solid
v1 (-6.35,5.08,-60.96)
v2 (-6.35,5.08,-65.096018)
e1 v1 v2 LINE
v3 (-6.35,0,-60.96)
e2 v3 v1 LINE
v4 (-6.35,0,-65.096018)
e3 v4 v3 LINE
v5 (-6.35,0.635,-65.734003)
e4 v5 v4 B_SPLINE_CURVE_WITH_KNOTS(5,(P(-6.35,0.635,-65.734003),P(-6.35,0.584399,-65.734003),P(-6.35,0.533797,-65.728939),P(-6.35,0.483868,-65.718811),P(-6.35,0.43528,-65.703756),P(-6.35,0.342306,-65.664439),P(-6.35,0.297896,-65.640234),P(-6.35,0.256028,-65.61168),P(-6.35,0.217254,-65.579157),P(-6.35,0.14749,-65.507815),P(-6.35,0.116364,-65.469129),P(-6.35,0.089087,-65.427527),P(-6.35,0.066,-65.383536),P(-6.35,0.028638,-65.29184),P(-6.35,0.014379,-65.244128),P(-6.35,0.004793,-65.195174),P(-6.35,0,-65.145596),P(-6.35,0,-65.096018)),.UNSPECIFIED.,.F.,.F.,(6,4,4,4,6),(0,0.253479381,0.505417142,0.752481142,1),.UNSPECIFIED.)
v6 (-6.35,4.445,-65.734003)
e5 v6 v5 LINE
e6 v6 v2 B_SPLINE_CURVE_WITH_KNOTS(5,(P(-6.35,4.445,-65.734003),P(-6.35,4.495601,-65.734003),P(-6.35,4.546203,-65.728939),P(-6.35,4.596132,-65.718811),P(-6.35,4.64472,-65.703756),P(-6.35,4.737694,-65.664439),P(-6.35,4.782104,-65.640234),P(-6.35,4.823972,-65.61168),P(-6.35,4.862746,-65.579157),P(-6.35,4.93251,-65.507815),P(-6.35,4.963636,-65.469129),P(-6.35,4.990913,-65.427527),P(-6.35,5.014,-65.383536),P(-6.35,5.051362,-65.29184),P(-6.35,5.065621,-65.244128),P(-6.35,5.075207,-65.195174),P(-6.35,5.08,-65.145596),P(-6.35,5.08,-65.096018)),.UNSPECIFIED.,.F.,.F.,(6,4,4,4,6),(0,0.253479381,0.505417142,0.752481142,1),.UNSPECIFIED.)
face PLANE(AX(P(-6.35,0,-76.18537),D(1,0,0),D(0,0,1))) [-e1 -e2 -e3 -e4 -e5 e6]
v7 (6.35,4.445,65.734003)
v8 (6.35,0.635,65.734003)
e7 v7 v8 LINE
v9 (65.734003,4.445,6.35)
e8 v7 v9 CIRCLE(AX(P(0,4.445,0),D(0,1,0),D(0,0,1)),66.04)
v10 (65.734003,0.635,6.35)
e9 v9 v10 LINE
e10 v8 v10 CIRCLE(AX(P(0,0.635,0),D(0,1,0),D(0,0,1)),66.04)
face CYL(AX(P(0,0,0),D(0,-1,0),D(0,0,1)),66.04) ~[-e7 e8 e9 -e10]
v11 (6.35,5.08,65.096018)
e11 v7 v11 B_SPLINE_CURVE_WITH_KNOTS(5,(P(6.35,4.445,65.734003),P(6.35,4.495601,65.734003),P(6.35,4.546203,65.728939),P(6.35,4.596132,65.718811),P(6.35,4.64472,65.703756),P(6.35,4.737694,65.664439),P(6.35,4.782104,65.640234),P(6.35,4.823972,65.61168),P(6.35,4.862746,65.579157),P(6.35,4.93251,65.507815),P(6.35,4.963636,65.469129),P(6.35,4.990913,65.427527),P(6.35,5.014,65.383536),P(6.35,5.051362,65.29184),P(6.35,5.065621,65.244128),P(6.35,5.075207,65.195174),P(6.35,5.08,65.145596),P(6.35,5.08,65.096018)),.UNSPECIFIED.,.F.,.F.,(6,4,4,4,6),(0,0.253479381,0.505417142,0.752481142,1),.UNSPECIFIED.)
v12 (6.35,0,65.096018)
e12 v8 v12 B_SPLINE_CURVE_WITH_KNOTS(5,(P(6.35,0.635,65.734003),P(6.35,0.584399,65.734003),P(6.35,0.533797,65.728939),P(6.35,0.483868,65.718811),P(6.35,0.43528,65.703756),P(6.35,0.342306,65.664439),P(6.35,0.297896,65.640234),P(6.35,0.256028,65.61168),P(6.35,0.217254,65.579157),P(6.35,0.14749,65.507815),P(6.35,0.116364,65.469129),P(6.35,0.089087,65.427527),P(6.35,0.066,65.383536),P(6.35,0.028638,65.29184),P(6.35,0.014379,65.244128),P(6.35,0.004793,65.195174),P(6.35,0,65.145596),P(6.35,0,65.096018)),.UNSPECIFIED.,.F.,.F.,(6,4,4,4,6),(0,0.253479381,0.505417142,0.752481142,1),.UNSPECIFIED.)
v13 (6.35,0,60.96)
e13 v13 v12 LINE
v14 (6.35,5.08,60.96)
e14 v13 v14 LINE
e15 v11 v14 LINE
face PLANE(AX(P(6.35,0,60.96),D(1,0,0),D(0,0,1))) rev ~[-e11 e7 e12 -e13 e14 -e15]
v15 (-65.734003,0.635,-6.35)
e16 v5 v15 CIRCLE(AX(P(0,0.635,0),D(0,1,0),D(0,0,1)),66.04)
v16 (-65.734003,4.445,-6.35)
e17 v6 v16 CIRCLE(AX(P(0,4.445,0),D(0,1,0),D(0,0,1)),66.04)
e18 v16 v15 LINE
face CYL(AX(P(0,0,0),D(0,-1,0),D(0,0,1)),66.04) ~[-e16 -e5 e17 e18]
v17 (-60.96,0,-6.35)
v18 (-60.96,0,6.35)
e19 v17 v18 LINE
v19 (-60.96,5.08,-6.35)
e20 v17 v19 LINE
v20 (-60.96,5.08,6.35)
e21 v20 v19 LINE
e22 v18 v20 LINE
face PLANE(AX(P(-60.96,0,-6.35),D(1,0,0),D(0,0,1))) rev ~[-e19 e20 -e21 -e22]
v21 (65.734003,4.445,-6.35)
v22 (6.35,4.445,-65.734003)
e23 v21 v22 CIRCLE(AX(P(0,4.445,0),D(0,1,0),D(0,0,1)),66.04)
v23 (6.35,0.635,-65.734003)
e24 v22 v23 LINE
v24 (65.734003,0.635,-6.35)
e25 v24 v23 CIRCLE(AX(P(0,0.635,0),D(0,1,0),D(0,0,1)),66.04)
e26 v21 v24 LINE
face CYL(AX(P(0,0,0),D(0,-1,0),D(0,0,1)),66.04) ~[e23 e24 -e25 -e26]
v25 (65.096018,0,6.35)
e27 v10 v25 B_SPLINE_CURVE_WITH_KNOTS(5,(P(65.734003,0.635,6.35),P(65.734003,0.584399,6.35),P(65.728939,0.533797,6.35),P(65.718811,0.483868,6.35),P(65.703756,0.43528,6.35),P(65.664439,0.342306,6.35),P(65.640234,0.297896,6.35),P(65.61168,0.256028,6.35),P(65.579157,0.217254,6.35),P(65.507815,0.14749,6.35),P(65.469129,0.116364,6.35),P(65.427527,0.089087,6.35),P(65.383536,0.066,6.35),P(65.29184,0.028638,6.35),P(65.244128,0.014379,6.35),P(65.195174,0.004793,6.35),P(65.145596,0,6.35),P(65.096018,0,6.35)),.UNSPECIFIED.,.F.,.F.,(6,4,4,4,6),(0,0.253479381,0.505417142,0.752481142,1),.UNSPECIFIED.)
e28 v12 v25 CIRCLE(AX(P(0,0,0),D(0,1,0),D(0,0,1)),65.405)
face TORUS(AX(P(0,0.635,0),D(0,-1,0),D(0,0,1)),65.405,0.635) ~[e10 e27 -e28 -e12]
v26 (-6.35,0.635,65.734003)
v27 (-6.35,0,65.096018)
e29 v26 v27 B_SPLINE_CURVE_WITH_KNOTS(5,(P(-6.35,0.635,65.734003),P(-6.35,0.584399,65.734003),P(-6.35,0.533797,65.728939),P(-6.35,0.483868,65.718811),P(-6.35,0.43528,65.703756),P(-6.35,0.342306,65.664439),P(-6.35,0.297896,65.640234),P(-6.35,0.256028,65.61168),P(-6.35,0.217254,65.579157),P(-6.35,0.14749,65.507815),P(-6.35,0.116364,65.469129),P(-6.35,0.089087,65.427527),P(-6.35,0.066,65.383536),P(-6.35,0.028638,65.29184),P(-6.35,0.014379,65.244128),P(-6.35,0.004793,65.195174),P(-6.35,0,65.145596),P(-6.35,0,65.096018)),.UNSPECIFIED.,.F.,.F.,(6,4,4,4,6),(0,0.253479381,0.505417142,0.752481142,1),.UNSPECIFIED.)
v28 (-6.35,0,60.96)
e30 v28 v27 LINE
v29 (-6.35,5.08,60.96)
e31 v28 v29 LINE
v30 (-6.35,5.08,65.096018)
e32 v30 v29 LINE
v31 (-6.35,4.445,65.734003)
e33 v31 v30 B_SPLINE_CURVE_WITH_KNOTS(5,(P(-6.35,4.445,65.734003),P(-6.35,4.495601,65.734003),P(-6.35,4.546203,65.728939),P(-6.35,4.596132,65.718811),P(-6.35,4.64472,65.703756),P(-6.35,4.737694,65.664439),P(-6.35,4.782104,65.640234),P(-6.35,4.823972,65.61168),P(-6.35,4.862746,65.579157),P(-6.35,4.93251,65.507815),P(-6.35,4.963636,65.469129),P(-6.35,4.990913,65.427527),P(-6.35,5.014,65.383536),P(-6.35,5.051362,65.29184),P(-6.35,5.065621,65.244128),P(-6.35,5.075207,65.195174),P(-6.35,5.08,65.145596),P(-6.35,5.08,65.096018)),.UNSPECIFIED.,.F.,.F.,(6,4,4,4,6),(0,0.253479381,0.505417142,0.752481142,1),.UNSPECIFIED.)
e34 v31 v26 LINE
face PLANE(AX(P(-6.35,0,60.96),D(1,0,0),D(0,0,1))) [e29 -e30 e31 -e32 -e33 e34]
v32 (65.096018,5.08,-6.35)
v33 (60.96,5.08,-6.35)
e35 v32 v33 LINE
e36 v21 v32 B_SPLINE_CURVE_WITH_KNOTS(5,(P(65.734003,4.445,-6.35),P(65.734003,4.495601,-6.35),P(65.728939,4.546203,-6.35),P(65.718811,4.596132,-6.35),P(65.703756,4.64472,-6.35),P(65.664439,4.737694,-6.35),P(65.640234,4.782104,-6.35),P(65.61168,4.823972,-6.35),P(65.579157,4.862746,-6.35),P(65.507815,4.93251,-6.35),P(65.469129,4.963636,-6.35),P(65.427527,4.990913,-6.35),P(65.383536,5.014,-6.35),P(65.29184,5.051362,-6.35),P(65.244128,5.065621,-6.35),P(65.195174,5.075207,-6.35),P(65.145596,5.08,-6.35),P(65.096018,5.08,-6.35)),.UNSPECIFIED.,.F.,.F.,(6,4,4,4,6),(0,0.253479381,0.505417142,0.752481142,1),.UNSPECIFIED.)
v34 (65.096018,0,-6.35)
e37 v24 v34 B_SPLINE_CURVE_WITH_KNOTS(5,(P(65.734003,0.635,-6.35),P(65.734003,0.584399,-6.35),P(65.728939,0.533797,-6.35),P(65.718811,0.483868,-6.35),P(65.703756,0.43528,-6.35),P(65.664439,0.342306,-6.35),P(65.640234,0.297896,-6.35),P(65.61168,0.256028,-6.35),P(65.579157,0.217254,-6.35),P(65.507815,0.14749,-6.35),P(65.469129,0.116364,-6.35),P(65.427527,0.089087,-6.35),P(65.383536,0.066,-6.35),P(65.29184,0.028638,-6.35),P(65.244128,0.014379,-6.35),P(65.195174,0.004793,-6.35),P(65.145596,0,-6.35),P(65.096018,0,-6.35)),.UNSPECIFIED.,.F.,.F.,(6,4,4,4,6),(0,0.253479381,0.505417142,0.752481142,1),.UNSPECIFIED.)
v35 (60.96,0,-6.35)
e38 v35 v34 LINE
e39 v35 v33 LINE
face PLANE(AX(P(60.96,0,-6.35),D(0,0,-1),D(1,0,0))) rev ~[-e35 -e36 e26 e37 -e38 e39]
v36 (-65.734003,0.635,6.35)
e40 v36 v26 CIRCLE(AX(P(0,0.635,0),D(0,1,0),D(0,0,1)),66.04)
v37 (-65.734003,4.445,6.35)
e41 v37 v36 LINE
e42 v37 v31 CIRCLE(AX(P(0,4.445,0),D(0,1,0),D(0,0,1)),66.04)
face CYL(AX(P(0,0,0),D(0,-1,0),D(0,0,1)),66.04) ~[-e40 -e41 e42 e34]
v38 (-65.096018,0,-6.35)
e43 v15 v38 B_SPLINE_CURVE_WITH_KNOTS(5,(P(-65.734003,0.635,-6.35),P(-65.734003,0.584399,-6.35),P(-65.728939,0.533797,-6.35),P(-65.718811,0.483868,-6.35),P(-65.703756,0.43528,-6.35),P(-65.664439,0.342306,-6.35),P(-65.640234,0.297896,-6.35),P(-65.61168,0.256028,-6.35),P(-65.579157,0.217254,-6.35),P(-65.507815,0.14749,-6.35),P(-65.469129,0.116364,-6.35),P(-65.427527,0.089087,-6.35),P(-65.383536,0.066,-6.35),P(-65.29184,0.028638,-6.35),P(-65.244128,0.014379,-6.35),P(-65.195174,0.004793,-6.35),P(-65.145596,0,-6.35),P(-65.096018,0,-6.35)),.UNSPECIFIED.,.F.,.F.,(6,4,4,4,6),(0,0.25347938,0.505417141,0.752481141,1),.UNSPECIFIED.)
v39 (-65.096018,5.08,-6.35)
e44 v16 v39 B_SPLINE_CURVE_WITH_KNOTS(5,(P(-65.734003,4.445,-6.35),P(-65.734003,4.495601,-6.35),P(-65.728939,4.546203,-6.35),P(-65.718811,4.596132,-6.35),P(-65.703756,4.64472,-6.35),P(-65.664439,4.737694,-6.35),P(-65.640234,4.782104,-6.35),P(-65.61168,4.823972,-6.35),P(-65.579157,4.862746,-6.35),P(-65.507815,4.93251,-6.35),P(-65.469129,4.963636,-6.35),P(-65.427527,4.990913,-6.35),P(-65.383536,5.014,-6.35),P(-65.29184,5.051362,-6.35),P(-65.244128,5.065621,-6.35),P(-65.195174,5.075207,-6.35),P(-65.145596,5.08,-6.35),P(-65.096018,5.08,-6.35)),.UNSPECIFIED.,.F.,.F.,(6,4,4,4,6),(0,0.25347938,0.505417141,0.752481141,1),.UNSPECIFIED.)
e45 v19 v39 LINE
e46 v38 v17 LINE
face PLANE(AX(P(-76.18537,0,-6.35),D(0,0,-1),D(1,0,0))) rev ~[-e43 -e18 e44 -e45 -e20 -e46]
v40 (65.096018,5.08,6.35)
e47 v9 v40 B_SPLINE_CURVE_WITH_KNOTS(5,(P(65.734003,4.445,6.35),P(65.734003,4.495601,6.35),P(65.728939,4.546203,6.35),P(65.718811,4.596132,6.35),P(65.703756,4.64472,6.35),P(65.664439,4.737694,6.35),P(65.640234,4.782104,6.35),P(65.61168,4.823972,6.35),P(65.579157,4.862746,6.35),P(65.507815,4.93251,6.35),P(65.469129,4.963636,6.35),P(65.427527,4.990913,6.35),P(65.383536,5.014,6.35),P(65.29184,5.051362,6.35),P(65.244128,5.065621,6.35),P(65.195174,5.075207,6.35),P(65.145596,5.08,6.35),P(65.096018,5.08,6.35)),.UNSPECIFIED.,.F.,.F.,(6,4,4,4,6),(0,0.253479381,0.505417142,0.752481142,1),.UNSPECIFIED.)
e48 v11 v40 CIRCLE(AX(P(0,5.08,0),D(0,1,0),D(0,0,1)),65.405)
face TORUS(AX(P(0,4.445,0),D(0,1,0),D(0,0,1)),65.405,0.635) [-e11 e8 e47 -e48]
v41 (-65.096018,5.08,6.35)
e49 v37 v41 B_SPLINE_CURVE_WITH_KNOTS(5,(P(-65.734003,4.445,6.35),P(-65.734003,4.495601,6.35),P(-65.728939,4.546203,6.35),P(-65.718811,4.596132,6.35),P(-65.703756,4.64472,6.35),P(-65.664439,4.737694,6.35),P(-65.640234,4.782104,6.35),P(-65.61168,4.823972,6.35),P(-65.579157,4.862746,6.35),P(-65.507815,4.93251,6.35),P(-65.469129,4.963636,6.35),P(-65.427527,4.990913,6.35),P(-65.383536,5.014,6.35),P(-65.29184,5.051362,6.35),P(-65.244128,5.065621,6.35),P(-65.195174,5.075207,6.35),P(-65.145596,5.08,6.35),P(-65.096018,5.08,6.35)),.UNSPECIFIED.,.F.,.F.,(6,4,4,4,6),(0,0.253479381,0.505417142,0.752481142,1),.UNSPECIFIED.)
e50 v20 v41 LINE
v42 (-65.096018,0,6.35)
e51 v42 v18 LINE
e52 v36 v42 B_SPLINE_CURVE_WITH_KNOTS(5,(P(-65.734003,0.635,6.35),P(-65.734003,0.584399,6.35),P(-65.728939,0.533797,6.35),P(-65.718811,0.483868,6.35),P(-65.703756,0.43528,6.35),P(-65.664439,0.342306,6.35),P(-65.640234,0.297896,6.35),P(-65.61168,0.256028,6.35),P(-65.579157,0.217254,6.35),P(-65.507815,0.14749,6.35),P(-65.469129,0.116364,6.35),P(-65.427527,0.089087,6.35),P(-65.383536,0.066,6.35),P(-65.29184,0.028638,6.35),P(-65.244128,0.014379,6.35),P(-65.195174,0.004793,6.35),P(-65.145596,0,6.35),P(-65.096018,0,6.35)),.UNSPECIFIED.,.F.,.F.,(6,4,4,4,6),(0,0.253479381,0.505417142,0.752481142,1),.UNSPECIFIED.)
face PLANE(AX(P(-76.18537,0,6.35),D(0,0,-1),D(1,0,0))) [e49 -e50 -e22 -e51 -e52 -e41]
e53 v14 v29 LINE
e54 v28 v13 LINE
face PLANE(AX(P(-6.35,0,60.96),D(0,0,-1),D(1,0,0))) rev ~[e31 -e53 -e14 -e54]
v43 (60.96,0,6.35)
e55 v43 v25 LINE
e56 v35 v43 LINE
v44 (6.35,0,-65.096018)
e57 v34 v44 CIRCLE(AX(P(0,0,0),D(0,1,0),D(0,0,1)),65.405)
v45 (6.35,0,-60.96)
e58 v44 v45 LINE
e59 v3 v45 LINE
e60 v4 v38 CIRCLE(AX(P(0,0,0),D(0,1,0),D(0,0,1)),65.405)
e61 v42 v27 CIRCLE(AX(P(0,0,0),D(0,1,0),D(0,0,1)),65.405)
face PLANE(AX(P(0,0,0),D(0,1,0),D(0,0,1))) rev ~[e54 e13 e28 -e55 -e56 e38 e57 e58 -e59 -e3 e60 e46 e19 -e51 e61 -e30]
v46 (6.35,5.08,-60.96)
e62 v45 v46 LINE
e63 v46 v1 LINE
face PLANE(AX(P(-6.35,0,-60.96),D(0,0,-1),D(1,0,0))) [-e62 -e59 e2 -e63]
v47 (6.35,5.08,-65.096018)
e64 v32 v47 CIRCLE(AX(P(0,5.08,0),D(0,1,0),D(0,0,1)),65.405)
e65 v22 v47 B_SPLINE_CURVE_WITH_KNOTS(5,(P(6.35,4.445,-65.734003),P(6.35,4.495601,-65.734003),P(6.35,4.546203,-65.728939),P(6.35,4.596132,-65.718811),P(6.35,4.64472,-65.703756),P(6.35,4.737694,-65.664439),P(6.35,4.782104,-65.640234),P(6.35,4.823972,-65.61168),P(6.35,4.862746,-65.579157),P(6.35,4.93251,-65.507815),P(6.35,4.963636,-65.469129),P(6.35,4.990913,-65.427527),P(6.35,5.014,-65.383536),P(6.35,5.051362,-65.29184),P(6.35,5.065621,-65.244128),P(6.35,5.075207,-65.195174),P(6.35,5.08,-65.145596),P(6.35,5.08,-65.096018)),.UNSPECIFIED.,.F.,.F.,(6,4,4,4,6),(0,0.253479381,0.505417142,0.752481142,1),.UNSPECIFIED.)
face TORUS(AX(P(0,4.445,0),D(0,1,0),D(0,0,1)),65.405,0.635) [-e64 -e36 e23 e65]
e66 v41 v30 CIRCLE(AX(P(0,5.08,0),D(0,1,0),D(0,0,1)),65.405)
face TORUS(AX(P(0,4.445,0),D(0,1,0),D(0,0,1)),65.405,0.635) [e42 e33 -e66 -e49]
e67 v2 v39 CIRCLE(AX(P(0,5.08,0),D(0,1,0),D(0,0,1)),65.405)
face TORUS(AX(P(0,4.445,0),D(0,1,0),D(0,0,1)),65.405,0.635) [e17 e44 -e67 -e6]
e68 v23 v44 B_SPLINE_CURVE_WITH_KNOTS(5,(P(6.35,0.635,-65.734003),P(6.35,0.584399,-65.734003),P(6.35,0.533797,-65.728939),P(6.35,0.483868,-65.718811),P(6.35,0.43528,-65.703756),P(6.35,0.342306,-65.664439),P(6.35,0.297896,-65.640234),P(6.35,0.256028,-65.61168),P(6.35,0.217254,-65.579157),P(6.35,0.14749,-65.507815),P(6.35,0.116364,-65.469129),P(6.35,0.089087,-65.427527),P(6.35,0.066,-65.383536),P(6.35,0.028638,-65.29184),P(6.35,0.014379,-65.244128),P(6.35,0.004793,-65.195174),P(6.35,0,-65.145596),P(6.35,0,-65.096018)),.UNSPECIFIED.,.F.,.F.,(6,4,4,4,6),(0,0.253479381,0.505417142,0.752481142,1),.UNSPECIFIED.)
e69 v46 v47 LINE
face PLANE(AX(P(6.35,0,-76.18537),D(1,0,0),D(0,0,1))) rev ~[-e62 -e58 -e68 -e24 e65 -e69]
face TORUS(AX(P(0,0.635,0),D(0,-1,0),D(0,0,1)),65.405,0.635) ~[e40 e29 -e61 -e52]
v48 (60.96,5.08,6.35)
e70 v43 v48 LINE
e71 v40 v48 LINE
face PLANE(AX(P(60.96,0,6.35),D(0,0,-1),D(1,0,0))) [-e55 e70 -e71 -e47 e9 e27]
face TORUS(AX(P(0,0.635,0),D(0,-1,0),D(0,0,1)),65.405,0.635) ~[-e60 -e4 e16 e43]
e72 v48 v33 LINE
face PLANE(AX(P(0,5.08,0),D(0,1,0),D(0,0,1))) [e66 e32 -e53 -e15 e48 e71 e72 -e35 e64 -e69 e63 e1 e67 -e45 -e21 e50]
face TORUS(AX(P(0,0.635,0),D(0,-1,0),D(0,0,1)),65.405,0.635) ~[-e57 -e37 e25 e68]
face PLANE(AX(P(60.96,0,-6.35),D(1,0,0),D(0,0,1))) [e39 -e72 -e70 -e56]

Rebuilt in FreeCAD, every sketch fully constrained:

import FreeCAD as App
import Part
import Sketcher
from FreeCAD import Vector
Q = App.Units.Quantity


def edges_at(feature, points):
    """Names of the edges that pass closest to the given points."""
    edges = feature.Shape.Edges
    near = lambda p: min(range(len(edges)), key=lambda i: edges[i].distToShape(Part.Vertex(*p))[0])
    return sorted({f"Edge{near(p) + 1}" for p in points})


def add_polygon(sketch, points):
    """Adds a closed chain of lines whose ends are joined by coincident constraints."""
    first, n = sketch.GeometryCount, len(points)
    for a, b in zip(points, points[1:] + points[:1]):
        sketch.addGeometry(Part.LineSegment(App.Vector(*a, 0), App.Vector(*b, 0)), False)
    for i in range(n):
        sketch.addConstraint(Sketcher.Constraint("Coincident", first + i, 2, first + (i + 1) % n, 1))

doc = App.newDocument("Part")
body = doc.addObject("PartDesign::Body", "Body")

# Sketch on XZ plane
sketch1 = body.newObject("Sketcher::SketchObject", "Sketch")
sketch1.AttachmentSupport = (doc.getObject("XZ_Plane"), [""])
sketch1.MapMode = "FlatFace"
sketch1.addGeometry(Part.Circle(Vector(0, 0, 0), Vector(0, 0, 1), 66.04), False)
sketch1.addConstraint([
    Sketcher.Constraint("Coincident", 0, 3, -1, 1),
    Sketcher.Constraint("Diameter", 0, Q("5.2 in")),
])
pad1 = body.newObject("PartDesign::Pad", "Pad")
pad1.Profile = sketch1
pad1.Length = Q("0.2 in")
pad1.Reversed = True
doc.recompute()

fillet = body.newObject("PartDesign::Fillet", "Fillet")
fillet.Base = (pad1, edges_at(pad1, [(0, 0, -66.04), (0, 5.08, -66.04)]))
fillet.Radius = Q("0.025 in")

# Sketch on XZ plane
sketch2 = body.newObject("Sketcher::SketchObject", "Sketch001")
sketch2.AttachmentSupport = (doc.getObject("XZ_Plane"), [""])
sketch2.MapMode = "FlatFace"
add_polygon(sketch2, [(-6.35, 76.18537), (-6.35, 60.96), (6.35, 60.96), (6.35, 76.18537)])  # lines 0-3
add_polygon(sketch2, [(60.96, 6.35), (60.96, -6.35), (76.18537, -6.35), (76.18537, 6.35)])  # lines 4-7
add_polygon(sketch2, [(-6.35, -60.96), (-6.35, -76.18537), (6.35, -76.18537), (6.35, -60.96)])  # lines 8-11
add_polygon(sketch2, [(-76.18537, 6.35), (-76.18537, -6.35), (-60.96, -6.35), (-60.96, 6.35)])  # lines 12-15
sketch2.addConstraint([
    Sketcher.Constraint("Vertical", 0),
    Sketcher.Constraint("Horizontal", 1),
    Sketcher.Constraint("Vertical", 2),
    Sketcher.Constraint("Horizontal", 3),
    Sketcher.Constraint("Vertical", 4),
    Sketcher.Constraint("Horizontal", 5),
    Sketcher.Constraint("Vertical", 6),
    Sketcher.Constraint("Horizontal", 7),
    Sketcher.Constraint("Vertical", 8),
    Sketcher.Constraint("Horizontal", 9),
    Sketcher.Constraint("Vertical", 10),
    Sketcher.Constraint("Horizontal", 11),
    Sketcher.Constraint("Vertical", 12),
    Sketcher.Constraint("Horizontal", 13),
    Sketcher.Constraint("Vertical", 14),
    Sketcher.Constraint("Horizontal", 15),
    Sketcher.Constraint("Symmetric", 2, 2, 8, 2, -1, 1),
    Sketcher.Constraint("Symmetric", 0, 2, 10, 2, -1, 1),
    Sketcher.Constraint("Symmetric", 6, 2, 12, 2, -1, 1),
    Sketcher.Constraint("Symmetric", 4, 2, 14, 2, -1, 1),
    Sketcher.Constraint("Horizontal", 5, 2, 12, 2),
    Sketcher.Constraint("Vertical", 3, 2, 8, 2),
    Sketcher.Constraint("Equal", 15, 0),
    Sketcher.Constraint("Equal", 11, 4),
    Sketcher.Constraint("DistanceX", 1, 1, 1, 2, Q("0.5 in")),
    Sketcher.Constraint("DistanceY", -1, 1, 0, 2, Q("2.4 in")),
    Sketcher.Constraint("DistanceX", -1, 1, 4, 2, Q("2.4 in")),
    Sketcher.Constraint("DistanceX", 5, 1, 5, 2, 15.22537),
])
pocket1 = body.newObject("PartDesign::Pocket", "Pocket")
pocket1.Profile = sketch2
pocket1.Type = "ThroughAll"

doc.recompute()
